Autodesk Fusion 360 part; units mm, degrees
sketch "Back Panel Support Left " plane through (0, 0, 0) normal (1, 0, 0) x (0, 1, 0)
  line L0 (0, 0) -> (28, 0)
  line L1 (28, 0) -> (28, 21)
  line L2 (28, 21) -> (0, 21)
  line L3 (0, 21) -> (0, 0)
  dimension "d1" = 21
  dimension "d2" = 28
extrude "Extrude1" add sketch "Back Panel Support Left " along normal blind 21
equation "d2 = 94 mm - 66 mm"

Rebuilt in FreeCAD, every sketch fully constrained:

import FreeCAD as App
import Part
import Sketcher

V = App.Vector


def add_polygon(sketch, points):
    """Adds a closed chain of lines whose ends are joined by coincident constraints."""
    first, n = sketch.GeometryCount, len(points)
    for a, b in zip(points, points[1:] + points[:1]):
        sketch.addGeometry(Part.LineSegment(App.Vector(*a, 0), App.Vector(*b, 0)), False)
    for i in range(n):
        sketch.addConstraint(Sketcher.Constraint("Coincident", first + i, 2, first + (i + 1) % n, 1))

doc = App.newDocument("Part")
body = doc.addObject("PartDesign::Body", "Body")

# Sketch on YZ plane
sketch1 = doc.addObject("Sketcher::SketchObject", "Sketch")
body.addObject(sketch1)
sketch1.AttachmentSupport = (doc.YZ_Plane, [""])
sketch1.MapMode = "FlatFace"
add_polygon(sketch1, [(0, 21), (0, 0), (28, 0), (28, 21)])  # lines 0-3
sketch1.addConstraint([
    Sketcher.Constraint("Vertical", 0),
    Sketcher.Constraint("Horizontal", 1),
    Sketcher.Constraint("Vertical", 2),
    Sketcher.Constraint("Horizontal", 3),
    Sketcher.Constraint("Coincident", 0, 2, -1, 1),
    Sketcher.Constraint("DistanceX", 1, 1, 1, 2, 28.0),
    Sketcher.Constraint("DistanceY", 0, 2, 0, 1, 21.0),
])
pad1 = doc.addObject("PartDesign::Pad", "Pad")
body.addObject(pad1)
pad1.Profile = sketch1
pad1.Length = 21

doc.recompute()
